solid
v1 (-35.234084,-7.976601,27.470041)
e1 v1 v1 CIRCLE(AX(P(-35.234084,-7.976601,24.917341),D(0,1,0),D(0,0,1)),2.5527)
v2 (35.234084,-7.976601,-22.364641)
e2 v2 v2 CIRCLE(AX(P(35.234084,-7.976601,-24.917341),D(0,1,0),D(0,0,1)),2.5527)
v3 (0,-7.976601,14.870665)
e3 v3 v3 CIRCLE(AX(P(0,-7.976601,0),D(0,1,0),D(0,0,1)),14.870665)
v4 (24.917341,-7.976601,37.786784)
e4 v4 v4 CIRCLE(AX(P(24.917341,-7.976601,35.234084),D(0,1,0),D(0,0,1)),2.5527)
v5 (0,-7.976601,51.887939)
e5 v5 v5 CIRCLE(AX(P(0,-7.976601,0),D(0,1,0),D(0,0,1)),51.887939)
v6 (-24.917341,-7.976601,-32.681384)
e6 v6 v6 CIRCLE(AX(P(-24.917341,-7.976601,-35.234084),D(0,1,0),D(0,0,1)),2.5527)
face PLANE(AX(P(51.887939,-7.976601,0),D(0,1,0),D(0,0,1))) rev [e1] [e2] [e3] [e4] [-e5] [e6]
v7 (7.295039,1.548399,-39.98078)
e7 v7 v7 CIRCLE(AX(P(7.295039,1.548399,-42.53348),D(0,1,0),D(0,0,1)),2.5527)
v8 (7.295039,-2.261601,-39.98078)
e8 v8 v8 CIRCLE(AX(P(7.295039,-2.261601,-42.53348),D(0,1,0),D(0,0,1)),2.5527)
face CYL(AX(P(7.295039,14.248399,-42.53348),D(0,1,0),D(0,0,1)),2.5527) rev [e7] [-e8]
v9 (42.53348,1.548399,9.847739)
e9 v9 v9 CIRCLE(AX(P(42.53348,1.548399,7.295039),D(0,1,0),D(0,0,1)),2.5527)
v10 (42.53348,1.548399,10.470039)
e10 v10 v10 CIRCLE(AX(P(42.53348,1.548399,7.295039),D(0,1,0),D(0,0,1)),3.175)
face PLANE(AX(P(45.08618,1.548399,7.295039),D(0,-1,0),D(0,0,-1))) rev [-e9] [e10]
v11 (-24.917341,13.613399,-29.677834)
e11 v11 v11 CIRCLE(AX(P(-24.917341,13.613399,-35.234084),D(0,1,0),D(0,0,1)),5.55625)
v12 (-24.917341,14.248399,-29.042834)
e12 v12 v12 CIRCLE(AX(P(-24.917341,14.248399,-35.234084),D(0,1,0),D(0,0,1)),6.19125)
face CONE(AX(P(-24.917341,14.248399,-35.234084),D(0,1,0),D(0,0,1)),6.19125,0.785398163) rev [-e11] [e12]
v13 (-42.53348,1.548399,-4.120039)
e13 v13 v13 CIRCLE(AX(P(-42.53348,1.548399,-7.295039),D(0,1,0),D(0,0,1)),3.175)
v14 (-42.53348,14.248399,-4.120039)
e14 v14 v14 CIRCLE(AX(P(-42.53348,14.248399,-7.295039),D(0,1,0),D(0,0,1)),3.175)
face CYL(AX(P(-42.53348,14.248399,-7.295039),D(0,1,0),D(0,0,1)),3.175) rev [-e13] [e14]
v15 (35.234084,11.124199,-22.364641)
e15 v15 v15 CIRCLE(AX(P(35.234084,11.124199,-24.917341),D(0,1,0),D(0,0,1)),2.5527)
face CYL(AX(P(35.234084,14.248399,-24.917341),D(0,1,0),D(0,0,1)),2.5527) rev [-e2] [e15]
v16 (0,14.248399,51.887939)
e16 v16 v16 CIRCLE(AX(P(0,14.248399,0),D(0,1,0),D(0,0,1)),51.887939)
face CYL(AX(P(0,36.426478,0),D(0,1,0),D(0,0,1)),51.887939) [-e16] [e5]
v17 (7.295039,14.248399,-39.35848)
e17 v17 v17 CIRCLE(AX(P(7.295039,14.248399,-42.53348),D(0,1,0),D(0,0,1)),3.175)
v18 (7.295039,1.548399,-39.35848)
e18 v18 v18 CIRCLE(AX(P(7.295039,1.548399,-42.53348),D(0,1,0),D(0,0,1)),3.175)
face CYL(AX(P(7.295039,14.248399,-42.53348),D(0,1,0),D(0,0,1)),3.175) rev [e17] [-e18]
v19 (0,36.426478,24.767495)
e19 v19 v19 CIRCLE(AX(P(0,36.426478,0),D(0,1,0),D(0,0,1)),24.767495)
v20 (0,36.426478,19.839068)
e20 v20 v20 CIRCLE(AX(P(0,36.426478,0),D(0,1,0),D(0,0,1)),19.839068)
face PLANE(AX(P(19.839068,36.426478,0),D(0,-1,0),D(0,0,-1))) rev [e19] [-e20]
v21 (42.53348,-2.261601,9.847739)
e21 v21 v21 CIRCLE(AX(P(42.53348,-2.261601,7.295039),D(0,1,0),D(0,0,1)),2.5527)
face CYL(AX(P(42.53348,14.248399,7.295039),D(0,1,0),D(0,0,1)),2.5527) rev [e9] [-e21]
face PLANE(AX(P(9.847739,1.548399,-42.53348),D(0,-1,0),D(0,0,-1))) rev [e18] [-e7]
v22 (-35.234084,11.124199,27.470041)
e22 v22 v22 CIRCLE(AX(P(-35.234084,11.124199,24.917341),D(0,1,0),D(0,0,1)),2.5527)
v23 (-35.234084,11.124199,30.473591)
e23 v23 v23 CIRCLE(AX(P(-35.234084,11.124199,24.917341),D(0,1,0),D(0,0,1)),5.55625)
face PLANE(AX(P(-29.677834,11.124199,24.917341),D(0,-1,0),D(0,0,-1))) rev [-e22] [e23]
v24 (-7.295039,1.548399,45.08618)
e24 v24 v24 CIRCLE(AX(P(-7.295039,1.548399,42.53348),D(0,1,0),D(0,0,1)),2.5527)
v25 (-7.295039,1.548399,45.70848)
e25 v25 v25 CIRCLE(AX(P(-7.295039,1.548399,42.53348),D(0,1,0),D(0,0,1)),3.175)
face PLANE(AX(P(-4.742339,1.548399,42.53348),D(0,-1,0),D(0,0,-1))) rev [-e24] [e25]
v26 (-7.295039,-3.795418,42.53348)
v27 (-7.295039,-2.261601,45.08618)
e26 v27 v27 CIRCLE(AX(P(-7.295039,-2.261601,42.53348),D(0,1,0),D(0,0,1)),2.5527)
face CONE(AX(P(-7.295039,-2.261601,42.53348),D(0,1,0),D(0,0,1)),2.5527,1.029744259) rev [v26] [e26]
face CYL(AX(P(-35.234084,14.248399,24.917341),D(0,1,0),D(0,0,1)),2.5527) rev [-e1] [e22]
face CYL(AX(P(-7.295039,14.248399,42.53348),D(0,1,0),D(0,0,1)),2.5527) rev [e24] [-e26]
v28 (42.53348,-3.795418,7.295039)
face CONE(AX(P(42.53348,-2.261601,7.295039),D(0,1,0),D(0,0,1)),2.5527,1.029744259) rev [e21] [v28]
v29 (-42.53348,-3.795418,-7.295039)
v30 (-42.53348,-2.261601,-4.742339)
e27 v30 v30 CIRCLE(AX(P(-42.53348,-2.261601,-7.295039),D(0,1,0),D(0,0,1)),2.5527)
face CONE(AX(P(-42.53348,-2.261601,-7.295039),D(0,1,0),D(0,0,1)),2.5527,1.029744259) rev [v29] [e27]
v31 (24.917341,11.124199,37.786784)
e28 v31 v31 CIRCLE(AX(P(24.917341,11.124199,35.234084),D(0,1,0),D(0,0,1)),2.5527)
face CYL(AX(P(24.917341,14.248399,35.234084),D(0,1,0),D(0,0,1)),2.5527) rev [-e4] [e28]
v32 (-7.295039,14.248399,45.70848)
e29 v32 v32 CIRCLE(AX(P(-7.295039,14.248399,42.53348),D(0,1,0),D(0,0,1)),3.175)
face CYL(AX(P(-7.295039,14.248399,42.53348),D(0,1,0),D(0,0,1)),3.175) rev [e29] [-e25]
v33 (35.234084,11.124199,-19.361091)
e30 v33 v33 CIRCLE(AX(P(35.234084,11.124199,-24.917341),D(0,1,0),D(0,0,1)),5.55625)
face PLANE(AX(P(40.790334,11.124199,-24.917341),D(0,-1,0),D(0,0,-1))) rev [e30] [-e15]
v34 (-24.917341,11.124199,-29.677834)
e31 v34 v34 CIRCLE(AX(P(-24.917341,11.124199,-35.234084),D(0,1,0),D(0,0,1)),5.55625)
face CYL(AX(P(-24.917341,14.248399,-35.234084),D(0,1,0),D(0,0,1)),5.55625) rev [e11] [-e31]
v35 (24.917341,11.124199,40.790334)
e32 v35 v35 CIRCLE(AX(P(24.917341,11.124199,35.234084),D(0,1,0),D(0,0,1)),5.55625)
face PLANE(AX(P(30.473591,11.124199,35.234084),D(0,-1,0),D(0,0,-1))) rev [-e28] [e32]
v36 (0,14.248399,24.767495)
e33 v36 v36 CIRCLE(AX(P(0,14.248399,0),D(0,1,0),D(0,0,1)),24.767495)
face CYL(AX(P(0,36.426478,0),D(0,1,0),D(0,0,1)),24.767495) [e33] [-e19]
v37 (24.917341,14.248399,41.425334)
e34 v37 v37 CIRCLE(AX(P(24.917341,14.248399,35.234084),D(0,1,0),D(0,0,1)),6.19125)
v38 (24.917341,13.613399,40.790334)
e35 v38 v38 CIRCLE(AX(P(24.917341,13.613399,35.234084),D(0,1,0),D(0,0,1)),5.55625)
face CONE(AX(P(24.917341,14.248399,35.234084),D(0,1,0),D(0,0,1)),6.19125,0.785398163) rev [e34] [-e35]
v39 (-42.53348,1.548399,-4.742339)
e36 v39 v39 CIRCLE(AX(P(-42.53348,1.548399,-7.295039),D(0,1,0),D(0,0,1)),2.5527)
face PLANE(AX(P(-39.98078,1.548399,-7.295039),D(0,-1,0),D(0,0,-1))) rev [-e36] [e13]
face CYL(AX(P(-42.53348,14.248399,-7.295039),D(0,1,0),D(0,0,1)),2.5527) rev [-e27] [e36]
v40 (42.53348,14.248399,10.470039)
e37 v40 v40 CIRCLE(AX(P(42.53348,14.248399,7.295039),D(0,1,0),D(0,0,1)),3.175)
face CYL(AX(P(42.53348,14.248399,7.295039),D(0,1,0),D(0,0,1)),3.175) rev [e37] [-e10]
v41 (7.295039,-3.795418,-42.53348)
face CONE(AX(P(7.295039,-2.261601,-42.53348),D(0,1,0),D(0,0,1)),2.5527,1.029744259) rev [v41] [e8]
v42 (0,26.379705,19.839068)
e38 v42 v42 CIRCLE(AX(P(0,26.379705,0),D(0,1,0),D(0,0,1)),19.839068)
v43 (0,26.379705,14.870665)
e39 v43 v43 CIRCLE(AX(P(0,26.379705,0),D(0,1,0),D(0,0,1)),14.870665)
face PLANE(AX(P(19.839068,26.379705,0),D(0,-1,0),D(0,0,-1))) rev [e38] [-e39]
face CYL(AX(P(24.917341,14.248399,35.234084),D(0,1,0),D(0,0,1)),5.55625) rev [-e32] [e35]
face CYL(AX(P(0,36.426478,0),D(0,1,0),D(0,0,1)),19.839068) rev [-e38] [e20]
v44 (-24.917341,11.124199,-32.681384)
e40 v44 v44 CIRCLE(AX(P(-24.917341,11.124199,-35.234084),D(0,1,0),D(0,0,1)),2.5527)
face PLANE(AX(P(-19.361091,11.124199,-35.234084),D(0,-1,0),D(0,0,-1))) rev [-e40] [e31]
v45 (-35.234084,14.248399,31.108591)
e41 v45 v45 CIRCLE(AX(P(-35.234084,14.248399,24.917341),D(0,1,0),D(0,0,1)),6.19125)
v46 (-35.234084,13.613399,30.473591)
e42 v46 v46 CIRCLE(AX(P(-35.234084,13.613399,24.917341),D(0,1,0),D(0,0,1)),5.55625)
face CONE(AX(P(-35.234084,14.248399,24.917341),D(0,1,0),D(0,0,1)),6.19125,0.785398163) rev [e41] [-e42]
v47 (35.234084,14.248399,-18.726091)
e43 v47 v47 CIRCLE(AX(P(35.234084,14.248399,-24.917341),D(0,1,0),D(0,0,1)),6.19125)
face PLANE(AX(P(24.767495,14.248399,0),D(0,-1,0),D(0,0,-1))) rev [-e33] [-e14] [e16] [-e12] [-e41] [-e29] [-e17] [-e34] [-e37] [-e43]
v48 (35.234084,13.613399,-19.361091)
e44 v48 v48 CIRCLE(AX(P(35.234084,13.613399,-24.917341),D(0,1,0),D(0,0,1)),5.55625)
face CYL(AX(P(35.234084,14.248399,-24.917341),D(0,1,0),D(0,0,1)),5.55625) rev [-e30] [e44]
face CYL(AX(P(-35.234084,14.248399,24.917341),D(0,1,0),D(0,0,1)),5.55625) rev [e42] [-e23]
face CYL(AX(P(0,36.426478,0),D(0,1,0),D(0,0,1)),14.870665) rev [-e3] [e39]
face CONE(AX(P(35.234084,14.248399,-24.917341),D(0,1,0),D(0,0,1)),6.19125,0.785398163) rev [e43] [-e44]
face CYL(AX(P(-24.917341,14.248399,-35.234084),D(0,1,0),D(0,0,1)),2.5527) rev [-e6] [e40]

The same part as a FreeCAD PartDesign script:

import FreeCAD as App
import Part
import Sketcher

V = App.Vector
Q = App.Units.Quantity

doc = App.newDocument("Part")
body = doc.addObject("PartDesign::Body", "Body")

sketch1 = body.newObject("Sketcher::SketchObject", "Sketch")
sketch1.AttachmentSupport = (doc.getObject("XY_Plane"), [""])
sketch1.MapMode = "FlatFace"
sketch1.addGeometry([
    Part.LineSegment(V(24.767495, 36.426478, 0), V(19.839068, 36.426478, 0)),
    Part.LineSegment(V(19.839068, 36.426478, 0), V(19.839068, 26.379705, 0)),
    Part.LineSegment(V(19.839068, 26.379705, 0), V(14.870665, 26.379705, 0)),
    Part.LineSegment(V(14.870665, 26.379705, 0), V(14.870665, -7.976601, 0)),
    Part.LineSegment(V(14.870665, -7.976601, 0), V(51.887939, -7.976601, 0)),
    Part.LineSegment(V(51.887939, -7.976601, 0), V(51.887939, 14.248399, 0)),
    Part.LineSegment(V(51.887939, 14.248399, 0), V(24.767495, 14.248399, 0)),
    Part.LineSegment(V(24.767495, 14.248399, 0), V(24.767495, 36.426478, 0)),
], False)
sketch1.addConstraint([
    Sketcher.Constraint("Coincident", 0, 2, 1, 1),
    Sketcher.Constraint("Coincident", 1, 2, 2, 1),
    Sketcher.Constraint("Coincident", 2, 2, 3, 1),
    Sketcher.Constraint("Coincident", 3, 2, 4, 1),
    Sketcher.Constraint("Coincident", 4, 2, 5, 1),
    Sketcher.Constraint("Coincident", 5, 2, 6, 1),
    Sketcher.Constraint("Coincident", 6, 2, 7, 1),
    Sketcher.Constraint("Coincident", 7, 2, 0, 1),
    Sketcher.Constraint("Horizontal", 0),
    Sketcher.Constraint("Vertical", 1),
    Sketcher.Constraint("Horizontal", 2),
    Sketcher.Constraint("Vertical", 3),
    Sketcher.Constraint("Horizontal", 4),
    Sketcher.Constraint("Vertical", 5),
    Sketcher.Constraint("Horizontal", 6),
    Sketcher.Constraint("Vertical", 7),
    Sketcher.Constraint("DistanceY", 5, 1, 5, 2, Q("0.875 in")),
    Sketcher.Constraint("DistanceY", 7, 1, 7, 2, Q("22.178079 mm")),
    Sketcher.Constraint("DistanceY", 3, 2, -1, 1, Q("7.976601 mm")),
    Sketcher.Constraint("DistanceX", 0, 2, 0, 1, Q("4.928428 mm")),
    Sketcher.Constraint("DistanceX", 2, 2, 2, 1, Q("4.968403 mm")),
    Sketcher.Constraint("DistanceX", 4, 1, 4, 2, Q("37.017274 mm")),
    Sketcher.Constraint("DistanceY", 1, 2, 1, 1, Q("10.046773 mm")),
    Sketcher.Constraint("DistanceX", -1, 1, 4, 2, Q("51.887939 mm")),
])
revolution = body.newObject("PartDesign::Revolution", "Revolution")
revolution.Profile = sketch1
revolution.ReferenceAxis = (sketch1, ["V_Axis"])
revolution.Angle = 360

sketch2 = body.newObject("Sketcher::SketchObject", "Sketch001")
sketch2.AttachmentSupport = (doc.getObject("YZ_Plane"), [""])
sketch2.MapMode = "FlatFace"
sketch2.AttachmentOffset = App.Placement(V(0, 0, 42.53348), App.Rotation())
sketch2.addGeometry([
    Part.LineSegment(V(-3.795418, 7.295039, 0), V(14.248399, 7.295039, 0)),
    Part.LineSegment(V(14.248399, 7.295039, 0), V(14.248399, 10.470039, 0)),
    Part.LineSegment(V(14.248399, 10.470039, 0), V(1.548399, 10.470039, 0)),
    Part.LineSegment(V(1.548399, 10.470039, 0), V(1.548399, 9.847739, 0)),
    Part.LineSegment(V(1.548399, 9.847739, 0), V(-2.261601, 9.847739, 0)),
    Part.LineSegment(V(-2.261601, 9.847739, 0), V(-3.795418, 7.295039, 0)),
], False)
sketch2.addGeometry(Part.LineSegment(V(14.248399, 7.295039, 0), V(-3.795418, 7.295039, 0)), True)
sketch2.addConstraint([
    Sketcher.Constraint("Coincident", 0, 2, 1, 1),
    Sketcher.Constraint("Coincident", 1, 2, 2, 1),
    Sketcher.Constraint("Coincident", 2, 2, 3, 1),
    Sketcher.Constraint("Coincident", 3, 2, 4, 1),
    Sketcher.Constraint("Coincident", 4, 2, 5, 1),
    Sketcher.Constraint("Coincident", 5, 2, 0, 1),
    Sketcher.Constraint("Horizontal", 0),
    Sketcher.Constraint("Vertical", 1),
    Sketcher.Constraint("Horizontal", 2),
    Sketcher.Constraint("Vertical", 3),
    Sketcher.Constraint("Horizontal", 4),
    Sketcher.Constraint("Horizontal", 6),
    Sketcher.Constraint("Coincident", 6, 1, 0, 2),
    Sketcher.Constraint("Equal", 0, 6),
    Sketcher.Constraint("DistanceX", 2, 2, 2, 1, Q("0.5 in")),
    Sketcher.Constraint("Angle", 5, Q("-121 deg")),
    Sketcher.Constraint("DistanceX", 4, 2, 4, 1, Q("0.15 in")),
    Sketcher.Constraint("DistanceY", 1, 1, 1, 2, Q("0.125 in")),
    Sketcher.Constraint("DistanceY", 3, 2, 3, 1, Q("0.0245 in")),
    Sketcher.Constraint("DistanceX", -1, 1, 0, 2, Q("14.248399 mm")),
    Sketcher.Constraint("DistanceY", -1, 1, 0, 2, Q("7.295039 mm")),
])
groove = body.newObject("PartDesign::Groove", "Groove")
groove.Profile = sketch2
groove.ReferenceAxis = (sketch2, ["Axis0"])
groove.Angle = 360
doc.recompute()

polarpattern = body.newObject("PartDesign::PolarPattern", "PolarPattern")
polarpattern.Originals = [groove]
polarpattern.Axis = (doc.getObject("Y_Axis"), [""])
polarpattern.Angle = 360
polarpattern.Occurrences = 4
body.Tip = polarpattern

sketch3 = body.newObject("Sketcher::SketchObject", "Sketch002")
sketch3.AttachmentSupport = (doc.getObject("YZ_Plane"), [""])
sketch3.MapMode = "FlatFace"
sketch3.AttachmentOffset = App.Placement(V(0, 0, 35.234084), App.Rotation())
sketch3.addGeometry([
    Part.LineSegment(V(-7.976601, -24.917341, 0), V(14.248399, -24.917341, 0)),
    Part.LineSegment(V(14.248399, -24.917341, 0), V(14.248399, -18.726091, 0)),
    Part.LineSegment(V(14.248399, -18.726091, 0), V(13.613399, -19.361091, 0)),
    Part.LineSegment(V(13.613399, -19.361091, 0), V(11.124199, -19.361091, 0)),
    Part.LineSegment(V(11.124199, -19.361091, 0), V(11.124199, -22.364641, 0)),
    Part.LineSegment(V(11.124199, -22.364641, 0), V(-7.976601, -22.364641, 0)),
    Part.LineSegment(V(-7.976601, -22.364641, 0), V(-7.976601, -24.917341, 0)),
], False)
sketch3.addGeometry(Part.LineSegment(V(14.248399, -24.917341, 0), V(-7.976601, -24.917341, 0)), True)
sketch3.addConstraint([
    Sketcher.Constraint("Coincident", 0, 2, 1, 1),
    Sketcher.Constraint("Coincident", 1, 2, 2, 1),
    Sketcher.Constraint("Coincident", 2, 2, 3, 1),
    Sketcher.Constraint("Coincident", 3, 2, 4, 1),
    Sketcher.Constraint("Coincident", 4, 2, 5, 1),
    Sketcher.Constraint("Coincident", 5, 2, 6, 1),
    Sketcher.Constraint("Coincident", 6, 2, 0, 1),
    Sketcher.Constraint("Horizontal", 0),
    Sketcher.Constraint("Vertical", 1),
    Sketcher.Constraint("Horizontal", 3),
    Sketcher.Constraint("Vertical", 4),
    Sketcher.Constraint("Horizontal", 5),
    Sketcher.Constraint("Vertical", 6),
    Sketcher.Constraint("Horizontal", 7),
    Sketcher.Constraint("Coincident", 7, 1, 0, 2),
    Sketcher.Constraint("Vertical", 5, 2, 7, 2),
    Sketcher.Constraint("Angle", 2, Q("-135 deg")),
    Sketcher.Constraint("DistanceX", 0, 1, 0, 2, Q("0.875 in")),
    Sketcher.Constraint("DistanceX", 3, 2, 3, 1, Q("0.098 in")),
    Sketcher.Constraint("DistanceX", 5, 2, 5, 1, Q("0.752 in")),
    Sketcher.Constraint("DistanceY", 6, 2, 6, 1, Q("0.1005 in")),
    Sketcher.Constraint("DistanceY", 0, 2, 2, 2, Q("0.21875 in")),
    Sketcher.Constraint("DistanceX", -1, 1, 0, 2, Q("14.248399 mm")),
    Sketcher.Constraint("DistanceY", 0, 2, -1, 1, Q("24.917341 mm")),
])
groove2 = body.newObject("PartDesign::Groove", "Groove001")
groove2.Profile = sketch3
groove2.ReferenceAxis = (sketch3, ["Axis0"])
groove2.Angle = 360
doc.recompute()

polarpattern2 = body.newObject("PartDesign::PolarPattern", "PolarPattern001")
polarpattern2.Originals = [groove2]
polarpattern2.Axis = (doc.getObject("Y_Axis"), [""])
polarpattern2.Angle = 360
polarpattern2.Occurrences = 4
body.Tip = polarpattern2

doc.recompute()
